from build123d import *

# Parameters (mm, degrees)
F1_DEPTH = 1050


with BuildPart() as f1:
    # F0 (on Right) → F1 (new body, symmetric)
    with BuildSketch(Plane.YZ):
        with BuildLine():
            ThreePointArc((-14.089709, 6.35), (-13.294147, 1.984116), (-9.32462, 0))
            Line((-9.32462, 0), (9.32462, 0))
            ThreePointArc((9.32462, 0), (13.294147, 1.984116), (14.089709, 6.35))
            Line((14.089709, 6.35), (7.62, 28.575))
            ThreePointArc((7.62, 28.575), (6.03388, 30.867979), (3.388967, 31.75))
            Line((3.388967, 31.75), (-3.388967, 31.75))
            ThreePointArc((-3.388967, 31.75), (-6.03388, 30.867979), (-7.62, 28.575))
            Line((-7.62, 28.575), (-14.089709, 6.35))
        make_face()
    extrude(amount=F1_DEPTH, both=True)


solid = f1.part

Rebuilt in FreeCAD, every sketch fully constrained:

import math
import FreeCAD as App
import Part
import Sketcher
from FreeCAD import Vector

doc = App.newDocument("Part")
body = doc.addObject("PartDesign::Body", "Body")

# Sketch on YZ plane
sketch1 = doc.addObject("Sketcher::SketchObject", "Sketch")
body.addObject(sketch1)
sketch1.AttachmentSupport = (doc.YZ_Plane, [""])
sketch1.MapMode = "FlatFace"
sketch1.addGeometry(Part.ArcOfCircle(Part.Circle(Vector(-9.324621, 4.962879, 0), Vector(0, 0, 1), 4.962879), math.radians(163.769685), math.radians(270.000006)), False)
sketch1.addGeometry(Part.LineSegment(Vector(-9.32462, 0, 0), Vector(9.32462, 0, 0)), False)
sketch1.addGeometry(Part.ArcOfCircle(Part.Circle(Vector(9.324621, 4.962879, 0), Vector(0, 0, 1), 4.962879), math.radians(-90.000006), math.radians(16.230315)), False)
sketch1.addGeometry(Part.LineSegment(Vector(14.089709, 6.35, 0), Vector(7.62, 28.575, 0)), False)
sketch1.addGeometry(Part.ArcOfCircle(Part.Circle(Vector(3.388967, 27.343344, 0), Vector(0, 0, 1), 4.406656), math.radians(16.230307), math.radians(89.999998)), False)
sketch1.addGeometry(Part.LineSegment(Vector(3.388967, 31.75, 0), Vector(-3.388967, 31.75, 0)), False)
sketch1.addGeometry(Part.ArcOfCircle(Part.Circle(Vector(-3.388967, 27.343344, 0), Vector(0, 0, 1), 4.406656), math.radians(90.000002), math.radians(163.769693)), False)
sketch1.addGeometry(Part.LineSegment(Vector(-7.62, 28.575, 0), Vector(-14.089709, 6.35, 0)), False)
sketch1.addConstraint(Sketcher.Constraint("Tangent", 0, 2, 1, 1))
sketch1.addConstraint(Sketcher.Constraint("Tangent", 1, 2, 2, 1))
sketch1.addConstraint(Sketcher.Constraint("Tangent", 2, 2, 3, 1))
sketch1.addConstraint(Sketcher.Constraint("Tangent", 3, 2, 4, 1))
sketch1.addConstraint(Sketcher.Constraint("Tangent", 4, 2, 5, 1))
sketch1.addConstraint(Sketcher.Constraint("Tangent", 5, 2, 6, 1))
sketch1.addConstraint(Sketcher.Constraint("Tangent", 6, 2, 7, 1))
sketch1.addConstraint(Sketcher.Constraint("Tangent", 7, 2, 0, 1))
sketch1.addConstraint(Sketcher.Constraint("Horizontal", 1))
sketch1.addConstraint(Sketcher.Constraint("Horizontal", 5))
sketch1.addConstraint(Sketcher.Constraint("Equal", 0, 2))
sketch1.addConstraint(Sketcher.Constraint("Equal", 4, 6))
sketch1.addConstraint(Sketcher.Constraint("Symmetric", 0, 2, 1, 2, -1, 1))
sketch1.addConstraint(Sketcher.Constraint("Horizontal", 3, 2, 6, 2))
sketch1.addConstraint(Sketcher.Constraint("DistanceY", 2, 2, 4, 2, 25.4))
sketch1.addConstraint(Sketcher.Constraint("DistanceY", -1, 1, 2, 2, 6.35))
sketch1.addConstraint(Sketcher.Constraint("DistanceX", -1, 1, 3, 2, 7.62))
sketch1.addConstraint(Sketcher.Constraint("Radius", 0, 4.962879))
sketch1.addConstraint(Sketcher.Constraint("DistanceY", -1, 1, 3, 2, 28.575))
pad1 = doc.addObject("PartDesign::Pad", "Pad")
body.addObject(pad1)
pad1.Profile = sketch1
pad1.Length = 2100
pad1.Midplane = True

doc.recompute()
